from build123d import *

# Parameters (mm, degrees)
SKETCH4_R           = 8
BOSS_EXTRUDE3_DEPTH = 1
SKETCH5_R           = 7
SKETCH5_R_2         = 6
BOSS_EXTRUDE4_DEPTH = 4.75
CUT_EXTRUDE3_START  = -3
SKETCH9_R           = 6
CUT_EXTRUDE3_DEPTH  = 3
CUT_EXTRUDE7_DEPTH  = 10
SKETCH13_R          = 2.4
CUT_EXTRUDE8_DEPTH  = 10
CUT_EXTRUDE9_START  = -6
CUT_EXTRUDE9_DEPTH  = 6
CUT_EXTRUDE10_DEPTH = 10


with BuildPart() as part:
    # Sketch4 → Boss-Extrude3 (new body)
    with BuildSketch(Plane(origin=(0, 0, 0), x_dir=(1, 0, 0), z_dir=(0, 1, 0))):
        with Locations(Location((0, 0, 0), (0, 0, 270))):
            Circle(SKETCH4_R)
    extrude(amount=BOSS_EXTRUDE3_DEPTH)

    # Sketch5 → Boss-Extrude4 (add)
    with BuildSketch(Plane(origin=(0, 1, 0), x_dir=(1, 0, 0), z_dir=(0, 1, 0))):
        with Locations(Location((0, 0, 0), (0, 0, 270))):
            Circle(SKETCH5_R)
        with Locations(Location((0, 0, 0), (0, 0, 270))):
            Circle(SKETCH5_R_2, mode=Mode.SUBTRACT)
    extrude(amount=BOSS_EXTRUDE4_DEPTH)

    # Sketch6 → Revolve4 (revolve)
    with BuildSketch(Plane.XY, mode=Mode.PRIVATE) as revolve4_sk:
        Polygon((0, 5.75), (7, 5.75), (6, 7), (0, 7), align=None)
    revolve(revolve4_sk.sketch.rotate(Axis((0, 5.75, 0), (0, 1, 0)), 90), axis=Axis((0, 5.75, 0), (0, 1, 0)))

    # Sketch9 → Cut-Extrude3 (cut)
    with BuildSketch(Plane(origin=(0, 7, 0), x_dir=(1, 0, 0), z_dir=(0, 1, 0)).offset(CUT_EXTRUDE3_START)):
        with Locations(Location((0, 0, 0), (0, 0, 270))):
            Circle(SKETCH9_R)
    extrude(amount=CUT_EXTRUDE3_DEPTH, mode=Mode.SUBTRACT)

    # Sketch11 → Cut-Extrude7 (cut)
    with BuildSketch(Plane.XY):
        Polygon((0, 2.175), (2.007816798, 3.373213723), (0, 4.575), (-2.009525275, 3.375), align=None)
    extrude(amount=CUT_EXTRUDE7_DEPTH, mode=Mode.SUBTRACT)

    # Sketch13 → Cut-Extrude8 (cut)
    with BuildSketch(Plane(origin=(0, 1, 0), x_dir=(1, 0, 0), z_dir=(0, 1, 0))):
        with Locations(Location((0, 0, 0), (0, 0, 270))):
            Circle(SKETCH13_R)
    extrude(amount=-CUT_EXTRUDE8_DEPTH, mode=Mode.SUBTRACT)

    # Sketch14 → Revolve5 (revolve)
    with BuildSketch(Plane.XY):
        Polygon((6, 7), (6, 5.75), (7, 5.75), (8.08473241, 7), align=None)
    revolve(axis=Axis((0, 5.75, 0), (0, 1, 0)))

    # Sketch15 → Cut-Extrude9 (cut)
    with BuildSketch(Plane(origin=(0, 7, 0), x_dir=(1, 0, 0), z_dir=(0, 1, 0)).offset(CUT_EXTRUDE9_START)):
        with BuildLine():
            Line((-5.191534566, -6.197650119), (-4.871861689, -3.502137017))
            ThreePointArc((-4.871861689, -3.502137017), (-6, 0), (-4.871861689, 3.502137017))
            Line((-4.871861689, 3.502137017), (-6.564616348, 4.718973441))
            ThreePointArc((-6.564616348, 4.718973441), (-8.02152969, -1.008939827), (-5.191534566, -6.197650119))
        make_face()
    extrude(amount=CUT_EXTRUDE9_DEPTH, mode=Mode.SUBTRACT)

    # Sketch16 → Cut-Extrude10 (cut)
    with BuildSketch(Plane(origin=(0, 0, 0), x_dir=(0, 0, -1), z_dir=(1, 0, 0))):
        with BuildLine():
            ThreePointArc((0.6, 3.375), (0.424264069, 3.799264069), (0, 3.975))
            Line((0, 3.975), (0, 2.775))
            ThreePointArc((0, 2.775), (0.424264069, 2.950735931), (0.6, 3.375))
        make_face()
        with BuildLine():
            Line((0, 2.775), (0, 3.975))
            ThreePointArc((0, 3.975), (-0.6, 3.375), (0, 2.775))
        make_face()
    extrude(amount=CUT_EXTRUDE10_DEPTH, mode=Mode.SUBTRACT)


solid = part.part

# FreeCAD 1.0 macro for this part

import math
import FreeCAD as App
import Part
import Sketcher

V = App.Vector


def add_polygon(sketch, points):
    """Adds a closed chain of lines whose ends are joined by coincident constraints."""
    first, n = sketch.GeometryCount, len(points)
    for a, b in zip(points, points[1:] + points[:1]):
        sketch.addGeometry(Part.LineSegment(App.Vector(*a, 0), App.Vector(*b, 0)), False)
    for i in range(n):
        sketch.addConstraint(Sketcher.Constraint("Coincident", first + i, 2, first + (i + 1) % n, 1))

doc = App.newDocument("Part")
body = doc.addObject("PartDesign::Body", "Body")

sketch1 = body.newObject("Sketcher::SketchObject", "Sketch")
sketch1.AttachmentSupport = (doc.getObject("XZ_Plane"), [""])
sketch1.MapMode = "FlatFace"
sketch1.addGeometry(Part.Circle(V(0, 0, 0), V(0, 0, 1), 8), False)
sketch1.addConstraint([
    Sketcher.Constraint("Coincident", 0, 3, -1, 1),
    Sketcher.Constraint("Diameter", 0, 16.0),
])
pad1 = body.newObject("PartDesign::Pad", "Pad")
pad1.Profile = sketch1
pad1.Length = 1
pad1.Reversed = True

sketch2 = body.newObject("Sketcher::SketchObject", "Sketch001")
sketch2.AttachmentSupport = (doc.getObject("XZ_Plane"), [""])
sketch2.MapMode = "FlatFace"
sketch2.AttachmentOffset = App.Placement(V(0, 0, -1), App.Rotation())
sketch2.addGeometry([
    Part.Circle(V(0, 0, 0), V(0, 0, 1), 7),
    Part.Circle(V(0, 0, 0), V(0, 0, 1), 6),
], False)
sketch2.addConstraint([
    Sketcher.Constraint("Coincident", 0, 3, -1, 1),
    Sketcher.Constraint("Coincident", 1, 3, -1, 1),
    Sketcher.Constraint("Diameter", 0, 14.0),
    Sketcher.Constraint("Diameter", 1, 12.0),
])
pad2 = body.newObject("PartDesign::Pad", "Pad001")
pad2.Profile = sketch2
pad2.Length = 4.75
pad2.Reversed = True

sketch3 = body.newObject("Sketcher::SketchObject", "Sketch002")
sketch3.AttachmentSupport = (doc.getObject("XY_Plane"), [""])
sketch3.MapMode = "FlatFace"
add_polygon(sketch3, [(0, 5.8), (7, 5.8), (6, 7), (0, 7)])
sketch3.addConstraint([
    Sketcher.Constraint("Horizontal", 0),
    Sketcher.Constraint("Horizontal", 2),
    Sketcher.Constraint("Vertical", 3),
    Sketcher.Constraint("PointOnObject", 2, 2, -2),
    Sketcher.Constraint("DistanceX", 0, 1, 0, 2, 7.0),
    Sketcher.Constraint("DistanceX", 2, 2, 2, 1, 6.0),
    Sketcher.Constraint("DistanceY", -1, 1, 1, 2, 7.0),
    Sketcher.Constraint("DistanceY", 3, 2, 3, 1, 1.25),
])
revolution = body.newObject("PartDesign::Revolution", "Revolution")
revolution.Profile = sketch3
revolution.ReferenceAxis = (sketch3, ["V_Axis"])
revolution.Angle = 360

sketch4 = body.newObject("Sketcher::SketchObject", "Sketch003")
sketch4.AttachmentSupport = (doc.getObject("XZ_Plane"), [""])
sketch4.MapMode = "FlatFace"
sketch4.AttachmentOffset = App.Placement(V(0, 0, -4), App.Rotation())
sketch4.addGeometry(Part.Circle(V(0, 0, 0), V(0, 0, 1), 6), False)
sketch4.addConstraint([
    Sketcher.Constraint("Coincident", 0, 3, -1, 1),
    Sketcher.Constraint("Diameter", 0, 12.0),
])
pocket1 = body.newObject("PartDesign::Pocket", "Pocket")
pocket1.Profile = sketch4
pocket1.Length = 3

sketch5 = body.newObject("Sketcher::SketchObject", "Sketch004")
sketch5.AttachmentSupport = (doc.getObject("XY_Plane"), [""])
sketch5.MapMode = "FlatFace"
add_polygon(sketch5, [(0, 2.2), (2, 3.4), (0, 4.6), (-2, 3.4)])
sketch5.addConstraint([
    Sketcher.Constraint("PointOnObject", 1, 2, -2),
    Sketcher.Constraint("PointOnObject", 3, 2, -2),
    Sketcher.Constraint("Equal", 2, 3),
    Sketcher.Constraint("DistanceY", 2, 2, 1, 2, 1.2),
    Sketcher.Constraint("DistanceY", -1, 1, 1, 2, 4.575),
    Sketcher.Constraint("Distance", 0, 2.338171),
    Sketcher.Constraint("Distance", 1, 2.340004),
    Sketcher.Constraint("Distance", 2, 2.340554),
])
pocket2 = body.newObject("PartDesign::Pocket", "Pocket001")
pocket2.Profile = sketch5
pocket2.Length = 10
pocket2.Reversed = True

sketch6 = body.newObject("Sketcher::SketchObject", "Sketch005")
sketch6.AttachmentSupport = (doc.getObject("XZ_Plane"), [""])
sketch6.MapMode = "FlatFace"
sketch6.AttachmentOffset = App.Placement(V(0, 0, -1), App.Rotation())
sketch6.addGeometry(Part.Circle(V(0, 0, 0), V(0, 0, 1), 2.4), False)
sketch6.addConstraint([
    Sketcher.Constraint("Coincident", 0, 3, -1, 1),
    Sketcher.Constraint("Diameter", 0, 4.8),
])
pocket3 = body.newObject("PartDesign::Pocket", "Pocket002")
pocket3.Profile = sketch6
pocket3.Length = 10
pocket3.Reversed = True

sketch7 = body.newObject("Sketcher::SketchObject", "Sketch006")
sketch7.AttachmentSupport = (doc.getObject("XY_Plane"), [""])
sketch7.MapMode = "FlatFace"
add_polygon(sketch7, [(6, 7), (6, 5.8), (7, 5.8), (8.1, 7)])
sketch7.addConstraint([
    Sketcher.Constraint("Vertical", 0),
    Sketcher.Constraint("Horizontal", 1),
    Sketcher.Constraint("Horizontal", 3),
    Sketcher.Constraint("DistanceX", 1, 1, 1, 2, 1.0),
    Sketcher.Constraint("DistanceX", -1, 1, 0, 2, 6.0),
    Sketcher.Constraint("DistanceY", -1, 1, 2, 2, 7.0),
    Sketcher.Constraint("DistanceY", 0, 2, 0, 1, 1.25),
    Sketcher.Constraint("DistanceX", 3, 2, 3, 1, 2.084732),
])
revolution2 = body.newObject("PartDesign::Revolution", "Revolution001")
revolution2.Profile = sketch7
revolution2.ReferenceAxis = (sketch7, ["V_Axis"])
revolution2.Angle = 360

sketch8 = body.newObject("Sketcher::SketchObject", "Sketch007")
sketch8.AttachmentSupport = (doc.getObject("XZ_Plane"), [""])
sketch8.MapMode = "FlatFace"
sketch8.AttachmentOffset = App.Placement(V(0, 0, -1), App.Rotation())
sketch8.addGeometry([
    Part.LineSegment(V(-5.2, 6.2, 0), V(-4.9, 3.5, 0)),
    Part.ArcOfCircle(Part.Circle(V(0, 0, 0), V(0, 0, 1), 6), math.radians(144), math.radians(216)),
    Part.LineSegment(V(-4.9, -3.5, 0), V(-6.6, -4.7, 0)),
    Part.ArcOfCircle(Part.Circle(V(0, 0, 0), V(0, 0, 1), 8.1), math.radians(130), math.radians(216)),
], False)
sketch8.addConstraint([
    Sketcher.Constraint("Coincident", 0, 2, 1, 1),
    Sketcher.Constraint("Coincident", 1, 2, 2, 1),
    Sketcher.Constraint("Coincident", 2, 2, 3, 2),
    Sketcher.Constraint("Coincident", 3, 1, 0, 1),
    Sketcher.Constraint("Coincident", 1, 3, -1, 1),
    Sketcher.Constraint("Coincident", 3, 3, -1, 1),
    Sketcher.Constraint("Vertical", 0, 2, 1, 2),
    Sketcher.Constraint("Radius", 1, 6.0),
    Sketcher.Constraint("Radius", 3, 8.084732),
    Sketcher.Constraint("DistanceX", 0, 2, -1, 1, 4.871862),
    Sketcher.Constraint("DistanceY", -1, 1, 3, 1, 6.19765),
    Sketcher.Constraint("DistanceY", 2, 2, 0, 2, 8.22111),
])
pocket4 = body.newObject("PartDesign::Pocket", "Pocket003")
pocket4.Profile = sketch8
pocket4.Length = 6

sketch9 = body.newObject("Sketcher::SketchObject", "Sketch008")
sketch9.AttachmentSupport = (doc.getObject("YZ_Plane"), [""])
sketch9.MapMode = "FlatFace"
sketch9.addGeometry([
    Part.ArcOfCircle(Part.Circle(V(3.4, 0, 0), V(0, 0, 1), 0.6), math.radians(-90), math.radians(0)),
    Part.ArcOfCircle(Part.Circle(V(3.4, 0, 0), V(0, 0, 1), 0.6), math.radians(0), math.radians(180)),
    Part.ArcOfCircle(Part.Circle(V(3.4, 0, 0), V(0, 0, 1), 0.6), math.radians(180), math.radians(270)),
], False)
sketch9.addConstraint([
    Sketcher.Constraint("Tangent", 0, 2, 1, 1),
    Sketcher.Constraint("Tangent", 1, 2, 2, 1),
    Sketcher.Constraint("Tangent", 2, 2, 0, 1),
    Sketcher.Constraint("PointOnObject", 0, 3, -1),
    Sketcher.Constraint("PointOnObject", 0, 2, -1),
    Sketcher.Constraint("PointOnObject", 1, 2, -1),
    Sketcher.Constraint("Vertical", 1, 3, 2, 2),
    Sketcher.Constraint("Radius", 0, 0.6),
    Sketcher.Constraint("DistanceX", -1, 1, 0, 3, 3.375),
])
pocket5 = body.newObject("PartDesign::Pocket", "Pocket004")
pocket5.Profile = sketch9
pocket5.Length = 10
pocket5.Reversed = True

doc.recompute()
